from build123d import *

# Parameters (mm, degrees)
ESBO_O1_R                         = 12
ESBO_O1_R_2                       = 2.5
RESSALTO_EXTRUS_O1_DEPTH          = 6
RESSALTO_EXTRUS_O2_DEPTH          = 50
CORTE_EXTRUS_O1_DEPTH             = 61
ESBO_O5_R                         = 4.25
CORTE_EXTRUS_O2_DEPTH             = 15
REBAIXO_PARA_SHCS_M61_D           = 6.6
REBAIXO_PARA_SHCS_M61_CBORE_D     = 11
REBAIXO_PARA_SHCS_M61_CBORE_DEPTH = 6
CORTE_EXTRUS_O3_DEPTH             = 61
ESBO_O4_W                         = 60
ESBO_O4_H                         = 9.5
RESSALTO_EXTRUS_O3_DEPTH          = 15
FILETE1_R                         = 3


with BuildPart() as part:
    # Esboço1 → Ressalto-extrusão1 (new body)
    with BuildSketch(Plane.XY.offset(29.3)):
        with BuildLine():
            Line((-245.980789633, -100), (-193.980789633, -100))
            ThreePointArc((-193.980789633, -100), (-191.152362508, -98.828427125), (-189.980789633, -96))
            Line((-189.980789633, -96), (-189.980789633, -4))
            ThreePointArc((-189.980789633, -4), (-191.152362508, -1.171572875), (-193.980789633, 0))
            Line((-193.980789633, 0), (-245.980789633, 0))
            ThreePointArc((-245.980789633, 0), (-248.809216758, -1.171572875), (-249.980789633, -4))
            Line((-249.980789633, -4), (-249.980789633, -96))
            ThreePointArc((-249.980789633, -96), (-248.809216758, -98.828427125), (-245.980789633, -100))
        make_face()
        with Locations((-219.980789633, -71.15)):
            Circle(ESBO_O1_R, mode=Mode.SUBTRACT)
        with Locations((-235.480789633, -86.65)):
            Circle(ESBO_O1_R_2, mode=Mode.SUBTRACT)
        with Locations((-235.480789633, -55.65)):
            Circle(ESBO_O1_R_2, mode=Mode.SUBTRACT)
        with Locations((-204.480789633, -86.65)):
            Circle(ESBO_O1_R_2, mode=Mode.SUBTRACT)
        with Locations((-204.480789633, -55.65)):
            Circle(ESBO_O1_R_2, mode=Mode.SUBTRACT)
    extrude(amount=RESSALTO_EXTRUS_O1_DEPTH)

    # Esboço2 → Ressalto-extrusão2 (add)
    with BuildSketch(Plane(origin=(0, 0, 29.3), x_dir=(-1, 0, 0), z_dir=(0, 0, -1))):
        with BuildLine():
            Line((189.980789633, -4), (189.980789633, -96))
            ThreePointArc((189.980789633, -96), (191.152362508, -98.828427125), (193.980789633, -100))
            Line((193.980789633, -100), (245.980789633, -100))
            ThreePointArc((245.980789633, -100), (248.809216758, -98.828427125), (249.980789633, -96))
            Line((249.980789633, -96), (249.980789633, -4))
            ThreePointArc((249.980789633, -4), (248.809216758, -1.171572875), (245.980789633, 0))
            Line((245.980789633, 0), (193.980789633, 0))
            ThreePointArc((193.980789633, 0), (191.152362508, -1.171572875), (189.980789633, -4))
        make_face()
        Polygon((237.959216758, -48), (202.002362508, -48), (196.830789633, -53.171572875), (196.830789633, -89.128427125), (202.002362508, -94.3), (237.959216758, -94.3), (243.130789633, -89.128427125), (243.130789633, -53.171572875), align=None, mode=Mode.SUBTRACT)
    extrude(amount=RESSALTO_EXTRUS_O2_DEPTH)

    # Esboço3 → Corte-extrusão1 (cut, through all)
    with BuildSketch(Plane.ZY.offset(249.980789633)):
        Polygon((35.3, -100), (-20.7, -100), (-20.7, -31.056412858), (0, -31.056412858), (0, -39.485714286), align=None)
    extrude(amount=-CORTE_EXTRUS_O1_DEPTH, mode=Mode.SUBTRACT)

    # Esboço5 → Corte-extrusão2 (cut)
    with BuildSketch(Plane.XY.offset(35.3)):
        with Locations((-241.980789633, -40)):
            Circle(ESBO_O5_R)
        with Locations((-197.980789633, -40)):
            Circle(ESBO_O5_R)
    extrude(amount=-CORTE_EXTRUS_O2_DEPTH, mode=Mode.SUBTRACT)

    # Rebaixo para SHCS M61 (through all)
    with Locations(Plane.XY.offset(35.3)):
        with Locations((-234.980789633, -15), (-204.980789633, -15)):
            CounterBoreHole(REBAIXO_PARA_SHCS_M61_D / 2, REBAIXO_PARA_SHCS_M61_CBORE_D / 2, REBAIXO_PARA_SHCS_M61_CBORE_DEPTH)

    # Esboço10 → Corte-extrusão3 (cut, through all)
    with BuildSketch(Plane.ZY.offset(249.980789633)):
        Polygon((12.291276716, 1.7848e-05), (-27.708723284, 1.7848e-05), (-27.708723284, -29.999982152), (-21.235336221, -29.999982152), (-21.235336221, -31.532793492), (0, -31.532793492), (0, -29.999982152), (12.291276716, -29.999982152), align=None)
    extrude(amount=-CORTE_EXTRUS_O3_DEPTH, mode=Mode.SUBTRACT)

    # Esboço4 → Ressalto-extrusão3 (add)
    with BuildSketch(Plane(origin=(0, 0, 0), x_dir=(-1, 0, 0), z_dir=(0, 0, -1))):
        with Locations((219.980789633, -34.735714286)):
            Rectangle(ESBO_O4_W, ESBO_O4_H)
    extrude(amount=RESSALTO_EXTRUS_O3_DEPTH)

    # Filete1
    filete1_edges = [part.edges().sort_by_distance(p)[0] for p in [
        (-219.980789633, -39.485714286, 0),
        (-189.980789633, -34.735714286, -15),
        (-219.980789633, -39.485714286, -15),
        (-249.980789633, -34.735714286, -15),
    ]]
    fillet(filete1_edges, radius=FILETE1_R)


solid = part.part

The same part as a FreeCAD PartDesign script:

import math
import FreeCAD as App
import Part
import Sketcher
from FreeCAD import Vector
Q = App.Units.Quantity


def edges_at(feature, points):
    """Names of the edges that pass closest to the given points."""
    edges = feature.Shape.Edges
    near = lambda p: min(range(len(edges)), key=lambda i: edges[i].distToShape(Part.Vertex(*p))[0])
    return sorted({f"Edge{near(p) + 1}" for p in points})


def add_polygon(sketch, points):
    """Adds a closed chain of lines whose ends are joined by coincident constraints."""
    first, n = sketch.GeometryCount, len(points)
    for a, b in zip(points, points[1:] + points[:1]):
        sketch.addGeometry(Part.LineSegment(App.Vector(*a, 0), App.Vector(*b, 0)), False)
    for i in range(n):
        sketch.addConstraint(Sketcher.Constraint("Coincident", first + i, 2, first + (i + 1) % n, 1))

doc = App.newDocument("Part")
body = doc.addObject("PartDesign::Body", "Body")

# Sketch on XY plane
sketch1 = body.newObject("Sketcher::SketchObject", "Sketch")
sketch1.AttachmentSupport = (doc.getObject("XY_Plane"), [""])
sketch1.MapMode = "FlatFace"
sketch1.AttachmentOffset = App.Placement(Vector(0, 0, 29.3), App.Rotation())
sketch1.addGeometry(Part.LineSegment(Vector(-245.98079, -100, 0), Vector(-193.98079, -100, 0)), False)
sketch1.addGeometry(Part.ArcOfCircle(Part.Circle(Vector(-193.98079, -96, 0), Vector(0, 0, 1), 4), math.radians(-90), math.radians(0)), False)
sketch1.addGeometry(Part.LineSegment(Vector(-189.98079, -96, 0), Vector(-189.98079, -4, 0)), False)
sketch1.addGeometry(Part.ArcOfCircle(Part.Circle(Vector(-193.98079, -4, 0), Vector(0, 0, 1), 4), math.radians(0), math.radians(90)), False)
sketch1.addGeometry(Part.LineSegment(Vector(-193.98079, 0, 0), Vector(-245.98079, 0, 0)), False)
sketch1.addGeometry(Part.ArcOfCircle(Part.Circle(Vector(-245.98079, -4, 0), Vector(0, 0, 1), 4), math.radians(90), math.radians(180)), False)
sketch1.addGeometry(Part.LineSegment(Vector(-249.98079, -4, 0), Vector(-249.98079, -96, 0)), False)
sketch1.addGeometry(Part.ArcOfCircle(Part.Circle(Vector(-245.98079, -96, 0), Vector(0, 0, 1), 4), math.radians(180), math.radians(270)), False)
sketch1.addGeometry(Part.Circle(Vector(-235.48079, -86.65, 0), Vector(0, 0, 1), 2.5), False)
sketch1.addGeometry(Part.Circle(Vector(-204.48079, -86.65, 0), Vector(0, 0, 1), 2.5), False)
sketch1.addGeometry(Part.Circle(Vector(-219.98079, -71.15, 0), Vector(0, 0, 1), 12), False)
sketch1.addGeometry(Part.Circle(Vector(-235.48079, -55.65, 0), Vector(0, 0, 1), 2.5), False)
sketch1.addGeometry(Part.Circle(Vector(-204.48079, -55.65, 0), Vector(0, 0, 1), 2.5), False)
sketch1.addConstraint(Sketcher.Constraint("Tangent", 0, 2, 1, 1))
sketch1.addConstraint(Sketcher.Constraint("Tangent", 1, 2, 2, 1))
sketch1.addConstraint(Sketcher.Constraint("Tangent", 2, 2, 3, 1))
sketch1.addConstraint(Sketcher.Constraint("Tangent", 3, 2, 4, 1))
sketch1.addConstraint(Sketcher.Constraint("Tangent", 4, 2, 5, 1))
sketch1.addConstraint(Sketcher.Constraint("Tangent", 5, 2, 6, 1))
sketch1.addConstraint(Sketcher.Constraint("Tangent", 6, 2, 7, 1))
sketch1.addConstraint(Sketcher.Constraint("Tangent", 7, 2, 0, 1))
sketch1.addConstraint(Sketcher.Constraint("Horizontal", 0))
sketch1.addConstraint(Sketcher.Constraint("Vertical", 2))
sketch1.addConstraint(Sketcher.Constraint("Horizontal", 4))
sketch1.addConstraint(Sketcher.Constraint("Vertical", 6))
sketch1.addConstraint(Sketcher.Constraint("Equal", 1, 3))
sketch1.addConstraint(Sketcher.Constraint("Equal", 3, 5))
sketch1.addConstraint(Sketcher.Constraint("Equal", 5, 7))
sketch1.addConstraint(Sketcher.Constraint("Equal", 8, 9))
sketch1.addConstraint(Sketcher.Constraint("Equal", 9, 11))
sketch1.addConstraint(Sketcher.Constraint("Equal", 11, 12))
sketch1.addConstraint(Sketcher.Constraint("PointOnObject", 3, 2, -1))
sketch1.addConstraint(Sketcher.Constraint("Horizontal", 8, 3, 9, 3))
sketch1.addConstraint(Sketcher.Constraint("Horizontal", 11, 3, 12, 3))
sketch1.addConstraint(Sketcher.Constraint("Vertical", 8, 3, 11, 3))
sketch1.addConstraint(Sketcher.Constraint("Vertical", 9, 3, 12, 3))
sketch1.addConstraint(Sketcher.Constraint("Diameter", 8, Q("5 mm")))
sketch1.addConstraint(Sketcher.Constraint("Diameter", 10, Q("24 mm")))
sketch1.addConstraint(Sketcher.Constraint("Radius", 1, Q("4 mm")))
sketch1.addConstraint(Sketcher.Constraint("DistanceX", 0, 1, 0, 2, Q("52 mm")))
sketch1.addConstraint(Sketcher.Constraint("DistanceY", 2, 1, 2, 2, Q("92 mm")))
sketch1.addConstraint(Sketcher.Constraint("DistanceX", 8, 3, 9, 3, Q("31 mm")))
sketch1.addConstraint(Sketcher.Constraint("DistanceX", 10, 3, 1, 3, Q("26 mm")))
sketch1.addConstraint(Sketcher.Constraint("DistanceY", 8, 3, 11, 3, Q("31 mm")))
sketch1.addConstraint(Sketcher.Constraint("DistanceX", 7, 3, 8, 3, Q("10.5 mm")))
sketch1.addConstraint(Sketcher.Constraint("DistanceY", 8, 3, 10, 3, Q("15.5 mm")))
sketch1.addConstraint(Sketcher.Constraint("DistanceY", 8, 3, -1, 1, Q("86.65 mm")))
sketch1.addConstraint(Sketcher.Constraint("DistanceX", 1, 3, -1, 1, Q("193.98079 mm")))
pad1 = body.newObject("PartDesign::Pad", "Pad")
pad1.Profile = sketch1
pad1.Length = 6

# Sketch on XY plane
sketch2 = body.newObject("Sketcher::SketchObject", "Sketch001")
sketch2.AttachmentSupport = (doc.getObject("XY_Plane"), [""])
sketch2.MapMode = "FlatFace"
sketch2.AttachmentOffset = App.Placement(Vector(0, 0, 29.3), App.Rotation())
sketch2.addGeometry(Part.LineSegment(Vector(-189.98079, -4, 0), Vector(-189.98079, -96, 0)), False)  # 0
sketch2.addGeometry(Part.ArcOfCircle(Part.Circle(Vector(-193.98079, -96, 0), Vector(0, 0, 1), 4), math.radians(-90), math.radians(0)), False)  # 1
sketch2.addGeometry(Part.LineSegment(Vector(-193.98079, -100, 0), Vector(-245.98079, -100, 0)), False)  # 2
sketch2.addGeometry(Part.ArcOfCircle(Part.Circle(Vector(-245.98079, -96, 0), Vector(0, 0, 1), 4), math.radians(180), math.radians(270)), False)  # 3
sketch2.addGeometry(Part.LineSegment(Vector(-249.98079, -96, 0), Vector(-249.98079, -4, 0)), False)  # 4
sketch2.addGeometry(Part.ArcOfCircle(Part.Circle(Vector(-245.98079, -4, 0), Vector(0, 0, 1), 4), math.radians(90), math.radians(180)), False)  # 5
sketch2.addGeometry(Part.LineSegment(Vector(-245.98079, 0, 0), Vector(-193.98079, 0, 0)), False)  # 6
sketch2.addGeometry(Part.ArcOfCircle(Part.Circle(Vector(-193.98079, -4, 0), Vector(0, 0, 1), 4), math.radians(0), math.radians(90)), False)  # 7
add_polygon(sketch2, [(-202.002363, -48), (-237.959217, -48), (-243.13079, -53.171573), (-243.13079, -89.128427), (-237.959217, -94.3), (-202.002363, -94.3), (-196.83079, -89.128427), (-196.83079, -53.171573)])  # lines 8-15
sketch2.addConstraint(Sketcher.Constraint("Tangent", 0, 2, 1, 2))
sketch2.addConstraint(Sketcher.Constraint("Tangent", 1, 1, 2, 1))
sketch2.addConstraint(Sketcher.Constraint("Tangent", 2, 2, 3, 2))
sketch2.addConstraint(Sketcher.Constraint("Tangent", 3, 1, 4, 1))
sketch2.addConstraint(Sketcher.Constraint("Tangent", 4, 2, 5, 2))
sketch2.addConstraint(Sketcher.Constraint("Tangent", 5, 1, 6, 1))
sketch2.addConstraint(Sketcher.Constraint("Tangent", 6, 2, 7, 2))
sketch2.addConstraint(Sketcher.Constraint("Tangent", 7, 1, 0, 1))
sketch2.addConstraint(Sketcher.Constraint("Vertical", 0))
sketch2.addConstraint(Sketcher.Constraint("Horizontal", 2))
sketch2.addConstraint(Sketcher.Constraint("Vertical", 4))
sketch2.addConstraint(Sketcher.Constraint("Horizontal", 6))
sketch2.addConstraint(Sketcher.Constraint("Horizontal", 8))
sketch2.addConstraint(Sketcher.Constraint("Vertical", 10))
sketch2.addConstraint(Sketcher.Constraint("Horizontal", 12))
sketch2.addConstraint(Sketcher.Constraint("Vertical", 14))
sketch2.addConstraint(Sketcher.Constraint("Equal", 1, 3))
sketch2.addConstraint(Sketcher.Constraint("Equal", 3, 5))
sketch2.addConstraint(Sketcher.Constraint("Equal", 5, 7))
sketch2.addConstraint(Sketcher.Constraint("PointOnObject", 5, 1, -1))
sketch2.addConstraint(Sketcher.Constraint("Perpendicular", 9, 11))
sketch2.addConstraint(Sketcher.Constraint("Perpendicular", 11, 13))
sketch2.addConstraint(Sketcher.Constraint("Perpendicular", 13, 15))
sketch2.addConstraint(Sketcher.Constraint("Horizontal", 10, 2, 13, 2))
sketch2.addConstraint(Sketcher.Constraint("Horizontal", 9, 2, 14, 2))
sketch2.addConstraint(Sketcher.Constraint("Vertical", 8, 2, 11, 2))
sketch2.addConstraint(Sketcher.Constraint("Vertical", 12, 2, 15, 2))
sketch2.addConstraint(Sketcher.Constraint("Equal", 12, 10))
sketch2.addConstraint(Sketcher.Constraint("Radius", 1, Q("4 mm")))
sketch2.addConstraint(Sketcher.Constraint("DistanceX", 2, 2, 2, 1, Q("52 mm")))
sketch2.addConstraint(Sketcher.Constraint("DistanceY", 0, 2, 0, 1, Q("92 mm")))
sketch2.addConstraint(Sketcher.Constraint("DistanceY", 8, 2, -1, 1, Q("48 mm")))
sketch2.addConstraint(Sketcher.Constraint("DistanceY", 11, 2, -1, 1, Q("94.3 mm")))
sketch2.addConstraint(Sketcher.Constraint("DistanceX", 3, 3, 9, 2, Q("2.85 mm")))
sketch2.addConstraint(Sketcher.Constraint("Distance", 9, Q("7.313708 mm")))
sketch2.addConstraint(Sketcher.Constraint("DistanceX", 1, 3, -1, 1, Q("193.98079 mm")))
pad2 = body.newObject("PartDesign::Pad", "Pad001")
pad2.Profile = sketch2
pad2.Length = 50
pad2.Reversed = True

# Sketch on YZ plane
sketch3 = body.newObject("Sketcher::SketchObject", "Sketch002")
sketch3.AttachmentSupport = (doc.getObject("YZ_Plane"), [""])
sketch3.MapMode = "FlatFace"
sketch3.AttachmentOffset = App.Placement(Vector(0, 0, -249.98079), App.Rotation())
add_polygon(sketch3, [(-100, -20.7), (-100, 35.3), (-39.485714, 0), (-31.056413, 0), (-31.056413, -20.7)])  # lines 0-4
sketch3.addConstraint(Sketcher.Constraint("Vertical", 0))
sketch3.addConstraint(Sketcher.Constraint("Horizontal", 2))
sketch3.addConstraint(Sketcher.Constraint("Vertical", 3))
sketch3.addConstraint(Sketcher.Constraint("Horizontal", 4))
sketch3.addConstraint(Sketcher.Constraint("PointOnObject", 1, 2, -1))
sketch3.addConstraint(Sketcher.Constraint("DistanceY", 0, 1, 0, 2, Q("56 mm")))
sketch3.addConstraint(Sketcher.Constraint("DistanceY", 3, 2, 3, 1, Q("20.7 mm")))
sketch3.addConstraint(Sketcher.Constraint("DistanceX", 0, 2, -1, 1, Q("100 mm")))
sketch3.addConstraint(Sketcher.Constraint("DistanceX", 2, 1, 2, 2, Q("8.429301 mm")))
sketch3.addConstraint(Sketcher.Constraint("Distance", 1, Q("70.05761 mm")))
pocket1 = body.newObject("PartDesign::Pocket", "Pocket")
pocket1.Profile = sketch3
pocket1.Type = "ThroughAll"
pocket1.Reversed = True

# Sketch on XY plane
sketch4 = body.newObject("Sketcher::SketchObject", "Sketch003")
sketch4.AttachmentSupport = (doc.getObject("XY_Plane"), [""])
sketch4.MapMode = "FlatFace"
sketch4.AttachmentOffset = App.Placement(Vector(0, 0, 35.3), App.Rotation())
sketch4.addGeometry(Part.Circle(Vector(-241.98079, -40, 0), Vector(0, 0, 1), 4.25), False)
sketch4.addGeometry(Part.Circle(Vector(-197.98079, -40, 0), Vector(0, 0, 1), 4.25), False)
sketch4.addConstraint(Sketcher.Constraint("Equal", 0, 1))
sketch4.addConstraint(Sketcher.Constraint("Horizontal", 0, 3, 1, 3))
sketch4.addConstraint(Sketcher.Constraint("Diameter", 0, Q("8.5 mm")))
sketch4.addConstraint(Sketcher.Constraint("DistanceY", 0, 3, -1, 1, Q("40 mm")))
sketch4.addConstraint(Sketcher.Constraint("DistanceX", 0, 3, 1, 3, Q("44 mm")))
sketch4.addConstraint(Sketcher.Constraint("DistanceX", 0, 3, -1, 1, Q("241.98079 mm")))
pocket2 = body.newObject("PartDesign::Pocket", "Pocket001")
pocket2.Profile = sketch4
pocket2.Length = 15

# Sketch on XY plane
sketch5 = body.newObject("Sketcher::SketchObject", "Sketch004")
sketch5.AttachmentSupport = (doc.getObject("XY_Plane"), [""])
sketch5.MapMode = "FlatFace"
sketch5.AttachmentOffset = App.Placement(Vector(0, 0, 35.3), App.Rotation())
sketch5.addGeometry(Part.Circle(Vector(-234.98079, -15, 0), Vector(0, 0, 1), 3.3), False)
sketch5.addGeometry(Part.Circle(Vector(-204.98079, -15, 0), Vector(0, 0, 1), 3.3), False)
sketch5.addConstraint(Sketcher.Constraint("Equal", 0, 1))
sketch5.addConstraint(Sketcher.Constraint("Horizontal", 0, 3, 1, 3))
sketch5.addConstraint(Sketcher.Constraint("Diameter", 0, Q("6.6 mm")))
sketch5.addConstraint(Sketcher.Constraint("DistanceY", 0, 3, -1, 1, Q("15 mm")))
sketch5.addConstraint(Sketcher.Constraint("DistanceX", 0, 3, 1, 3, Q("30 mm")))
sketch5.addConstraint(Sketcher.Constraint("DistanceX", 0, 3, -1, 1, Q("234.98079 mm")))
doc.recompute()
hole = body.newObject("PartDesign::Hole", "Hole")
hole.Profile = sketch5
hole.ThreadType = "None"
hole.Diameter = 6.6
hole.DepthType = "ThroughAll"
hole.HoleCutType = "Counterbore"
hole.HoleCutDiameter = 11
hole.HoleCutDepth = 6

# Sketch on YZ plane
sketch6 = body.newObject("Sketcher::SketchObject", "Sketch005")
sketch6.AttachmentSupport = (doc.getObject("YZ_Plane"), [""])
sketch6.MapMode = "FlatFace"
sketch6.AttachmentOffset = App.Placement(Vector(0, 0, -249.98079), App.Rotation())
add_polygon(sketch6, [(0.000018, 12.291277), (0.000018, -27.708723), (-29.999982, -27.708723), (-29.999982, -21.235336), (-31.532793, -21.235336), (-31.532793, 0), (-29.999982, 0), (-29.999982, 12.291277)])  # lines 0-7
sketch6.addConstraint(Sketcher.Constraint("Vertical", 0))
sketch6.addConstraint(Sketcher.Constraint("Horizontal", 1))
sketch6.addConstraint(Sketcher.Constraint("Vertical", 2))
sketch6.addConstraint(Sketcher.Constraint("Horizontal", 3))
sketch6.addConstraint(Sketcher.Constraint("Vertical", 4))
sketch6.addConstraint(Sketcher.Constraint("Horizontal", 5))
sketch6.addConstraint(Sketcher.Constraint("Vertical", 6))
sketch6.addConstraint(Sketcher.Constraint("Horizontal", 7))
sketch6.addConstraint(Sketcher.Constraint("PointOnObject", 4, 2, -1))
sketch6.addConstraint(Sketcher.Constraint("Vertical", 2, 2, 5, 2))
sketch6.addConstraint(Sketcher.Constraint("DistanceX", 1, 2, 1, 1, Q("30 mm")))
sketch6.addConstraint(Sketcher.Constraint("DistanceY", 0, 2, 0, 1, Q("40 mm")))
sketch6.addConstraint(Sketcher.Constraint("DistanceX", 3, 2, 3, 1, Q("1.532811 mm")))
sketch6.addConstraint(Sketcher.Constraint("DistanceY", 2, 1, 2, 2, Q("6.473387 mm")))
sketch6.addConstraint(Sketcher.Constraint("DistanceY", 4, 1, 4, 2, Q("21.235336 mm")))
sketch6.addConstraint(Sketcher.Constraint("DistanceX", 1, 2, -1, 1, Q("29.999982 mm")))
pocket3 = body.newObject("PartDesign::Pocket", "Pocket002")
pocket3.Profile = sketch6
pocket3.Type = "ThroughAll"
pocket3.Reversed = True

# Sketch on XY plane
sketch7 = body.newObject("Sketcher::SketchObject", "Sketch006")
sketch7.AttachmentSupport = (doc.getObject("XY_Plane"), [""])
sketch7.MapMode = "FlatFace"
add_polygon(sketch7, [(-189.98079, -29.985714), (-189.98079, -39.485714), (-249.98079, -39.485714), (-249.98079, -29.985714)])  # lines 0-3
sketch7.addConstraint(Sketcher.Constraint("Vertical", 0))
sketch7.addConstraint(Sketcher.Constraint("Horizontal", 1))
sketch7.addConstraint(Sketcher.Constraint("Vertical", 2))
sketch7.addConstraint(Sketcher.Constraint("Horizontal", 3))
sketch7.addConstraint(Sketcher.Constraint("DistanceX", 1, 2, 1, 1, Q("60 mm")))
sketch7.addConstraint(Sketcher.Constraint("DistanceY", 0, 2, 0, 1, Q("9.5 mm")))
sketch7.addConstraint(Sketcher.Constraint("DistanceX", 0, 2, -1, 1, Q("189.98079 mm")))
sketch7.addConstraint(Sketcher.Constraint("DistanceY", 0, 2, -1, 1, Q("39.485714 mm")))
pad3 = body.newObject("PartDesign::Pad", "Pad002")
pad3.Profile = sketch7
pad3.Length = 15
pad3.Reversed = True
doc.recompute()

fillet = body.newObject("PartDesign::Fillet", "Fillet")
fillet.Base = (pad3, edges_at(pad3, [
    (-219.981, -39.486, 0),
    (-189.981, -34.736, -15),
    (-219.981, -39.486, -15),
    (-249.981, -34.736, -15),
]))
fillet.Radius = 3

doc.recompute()
